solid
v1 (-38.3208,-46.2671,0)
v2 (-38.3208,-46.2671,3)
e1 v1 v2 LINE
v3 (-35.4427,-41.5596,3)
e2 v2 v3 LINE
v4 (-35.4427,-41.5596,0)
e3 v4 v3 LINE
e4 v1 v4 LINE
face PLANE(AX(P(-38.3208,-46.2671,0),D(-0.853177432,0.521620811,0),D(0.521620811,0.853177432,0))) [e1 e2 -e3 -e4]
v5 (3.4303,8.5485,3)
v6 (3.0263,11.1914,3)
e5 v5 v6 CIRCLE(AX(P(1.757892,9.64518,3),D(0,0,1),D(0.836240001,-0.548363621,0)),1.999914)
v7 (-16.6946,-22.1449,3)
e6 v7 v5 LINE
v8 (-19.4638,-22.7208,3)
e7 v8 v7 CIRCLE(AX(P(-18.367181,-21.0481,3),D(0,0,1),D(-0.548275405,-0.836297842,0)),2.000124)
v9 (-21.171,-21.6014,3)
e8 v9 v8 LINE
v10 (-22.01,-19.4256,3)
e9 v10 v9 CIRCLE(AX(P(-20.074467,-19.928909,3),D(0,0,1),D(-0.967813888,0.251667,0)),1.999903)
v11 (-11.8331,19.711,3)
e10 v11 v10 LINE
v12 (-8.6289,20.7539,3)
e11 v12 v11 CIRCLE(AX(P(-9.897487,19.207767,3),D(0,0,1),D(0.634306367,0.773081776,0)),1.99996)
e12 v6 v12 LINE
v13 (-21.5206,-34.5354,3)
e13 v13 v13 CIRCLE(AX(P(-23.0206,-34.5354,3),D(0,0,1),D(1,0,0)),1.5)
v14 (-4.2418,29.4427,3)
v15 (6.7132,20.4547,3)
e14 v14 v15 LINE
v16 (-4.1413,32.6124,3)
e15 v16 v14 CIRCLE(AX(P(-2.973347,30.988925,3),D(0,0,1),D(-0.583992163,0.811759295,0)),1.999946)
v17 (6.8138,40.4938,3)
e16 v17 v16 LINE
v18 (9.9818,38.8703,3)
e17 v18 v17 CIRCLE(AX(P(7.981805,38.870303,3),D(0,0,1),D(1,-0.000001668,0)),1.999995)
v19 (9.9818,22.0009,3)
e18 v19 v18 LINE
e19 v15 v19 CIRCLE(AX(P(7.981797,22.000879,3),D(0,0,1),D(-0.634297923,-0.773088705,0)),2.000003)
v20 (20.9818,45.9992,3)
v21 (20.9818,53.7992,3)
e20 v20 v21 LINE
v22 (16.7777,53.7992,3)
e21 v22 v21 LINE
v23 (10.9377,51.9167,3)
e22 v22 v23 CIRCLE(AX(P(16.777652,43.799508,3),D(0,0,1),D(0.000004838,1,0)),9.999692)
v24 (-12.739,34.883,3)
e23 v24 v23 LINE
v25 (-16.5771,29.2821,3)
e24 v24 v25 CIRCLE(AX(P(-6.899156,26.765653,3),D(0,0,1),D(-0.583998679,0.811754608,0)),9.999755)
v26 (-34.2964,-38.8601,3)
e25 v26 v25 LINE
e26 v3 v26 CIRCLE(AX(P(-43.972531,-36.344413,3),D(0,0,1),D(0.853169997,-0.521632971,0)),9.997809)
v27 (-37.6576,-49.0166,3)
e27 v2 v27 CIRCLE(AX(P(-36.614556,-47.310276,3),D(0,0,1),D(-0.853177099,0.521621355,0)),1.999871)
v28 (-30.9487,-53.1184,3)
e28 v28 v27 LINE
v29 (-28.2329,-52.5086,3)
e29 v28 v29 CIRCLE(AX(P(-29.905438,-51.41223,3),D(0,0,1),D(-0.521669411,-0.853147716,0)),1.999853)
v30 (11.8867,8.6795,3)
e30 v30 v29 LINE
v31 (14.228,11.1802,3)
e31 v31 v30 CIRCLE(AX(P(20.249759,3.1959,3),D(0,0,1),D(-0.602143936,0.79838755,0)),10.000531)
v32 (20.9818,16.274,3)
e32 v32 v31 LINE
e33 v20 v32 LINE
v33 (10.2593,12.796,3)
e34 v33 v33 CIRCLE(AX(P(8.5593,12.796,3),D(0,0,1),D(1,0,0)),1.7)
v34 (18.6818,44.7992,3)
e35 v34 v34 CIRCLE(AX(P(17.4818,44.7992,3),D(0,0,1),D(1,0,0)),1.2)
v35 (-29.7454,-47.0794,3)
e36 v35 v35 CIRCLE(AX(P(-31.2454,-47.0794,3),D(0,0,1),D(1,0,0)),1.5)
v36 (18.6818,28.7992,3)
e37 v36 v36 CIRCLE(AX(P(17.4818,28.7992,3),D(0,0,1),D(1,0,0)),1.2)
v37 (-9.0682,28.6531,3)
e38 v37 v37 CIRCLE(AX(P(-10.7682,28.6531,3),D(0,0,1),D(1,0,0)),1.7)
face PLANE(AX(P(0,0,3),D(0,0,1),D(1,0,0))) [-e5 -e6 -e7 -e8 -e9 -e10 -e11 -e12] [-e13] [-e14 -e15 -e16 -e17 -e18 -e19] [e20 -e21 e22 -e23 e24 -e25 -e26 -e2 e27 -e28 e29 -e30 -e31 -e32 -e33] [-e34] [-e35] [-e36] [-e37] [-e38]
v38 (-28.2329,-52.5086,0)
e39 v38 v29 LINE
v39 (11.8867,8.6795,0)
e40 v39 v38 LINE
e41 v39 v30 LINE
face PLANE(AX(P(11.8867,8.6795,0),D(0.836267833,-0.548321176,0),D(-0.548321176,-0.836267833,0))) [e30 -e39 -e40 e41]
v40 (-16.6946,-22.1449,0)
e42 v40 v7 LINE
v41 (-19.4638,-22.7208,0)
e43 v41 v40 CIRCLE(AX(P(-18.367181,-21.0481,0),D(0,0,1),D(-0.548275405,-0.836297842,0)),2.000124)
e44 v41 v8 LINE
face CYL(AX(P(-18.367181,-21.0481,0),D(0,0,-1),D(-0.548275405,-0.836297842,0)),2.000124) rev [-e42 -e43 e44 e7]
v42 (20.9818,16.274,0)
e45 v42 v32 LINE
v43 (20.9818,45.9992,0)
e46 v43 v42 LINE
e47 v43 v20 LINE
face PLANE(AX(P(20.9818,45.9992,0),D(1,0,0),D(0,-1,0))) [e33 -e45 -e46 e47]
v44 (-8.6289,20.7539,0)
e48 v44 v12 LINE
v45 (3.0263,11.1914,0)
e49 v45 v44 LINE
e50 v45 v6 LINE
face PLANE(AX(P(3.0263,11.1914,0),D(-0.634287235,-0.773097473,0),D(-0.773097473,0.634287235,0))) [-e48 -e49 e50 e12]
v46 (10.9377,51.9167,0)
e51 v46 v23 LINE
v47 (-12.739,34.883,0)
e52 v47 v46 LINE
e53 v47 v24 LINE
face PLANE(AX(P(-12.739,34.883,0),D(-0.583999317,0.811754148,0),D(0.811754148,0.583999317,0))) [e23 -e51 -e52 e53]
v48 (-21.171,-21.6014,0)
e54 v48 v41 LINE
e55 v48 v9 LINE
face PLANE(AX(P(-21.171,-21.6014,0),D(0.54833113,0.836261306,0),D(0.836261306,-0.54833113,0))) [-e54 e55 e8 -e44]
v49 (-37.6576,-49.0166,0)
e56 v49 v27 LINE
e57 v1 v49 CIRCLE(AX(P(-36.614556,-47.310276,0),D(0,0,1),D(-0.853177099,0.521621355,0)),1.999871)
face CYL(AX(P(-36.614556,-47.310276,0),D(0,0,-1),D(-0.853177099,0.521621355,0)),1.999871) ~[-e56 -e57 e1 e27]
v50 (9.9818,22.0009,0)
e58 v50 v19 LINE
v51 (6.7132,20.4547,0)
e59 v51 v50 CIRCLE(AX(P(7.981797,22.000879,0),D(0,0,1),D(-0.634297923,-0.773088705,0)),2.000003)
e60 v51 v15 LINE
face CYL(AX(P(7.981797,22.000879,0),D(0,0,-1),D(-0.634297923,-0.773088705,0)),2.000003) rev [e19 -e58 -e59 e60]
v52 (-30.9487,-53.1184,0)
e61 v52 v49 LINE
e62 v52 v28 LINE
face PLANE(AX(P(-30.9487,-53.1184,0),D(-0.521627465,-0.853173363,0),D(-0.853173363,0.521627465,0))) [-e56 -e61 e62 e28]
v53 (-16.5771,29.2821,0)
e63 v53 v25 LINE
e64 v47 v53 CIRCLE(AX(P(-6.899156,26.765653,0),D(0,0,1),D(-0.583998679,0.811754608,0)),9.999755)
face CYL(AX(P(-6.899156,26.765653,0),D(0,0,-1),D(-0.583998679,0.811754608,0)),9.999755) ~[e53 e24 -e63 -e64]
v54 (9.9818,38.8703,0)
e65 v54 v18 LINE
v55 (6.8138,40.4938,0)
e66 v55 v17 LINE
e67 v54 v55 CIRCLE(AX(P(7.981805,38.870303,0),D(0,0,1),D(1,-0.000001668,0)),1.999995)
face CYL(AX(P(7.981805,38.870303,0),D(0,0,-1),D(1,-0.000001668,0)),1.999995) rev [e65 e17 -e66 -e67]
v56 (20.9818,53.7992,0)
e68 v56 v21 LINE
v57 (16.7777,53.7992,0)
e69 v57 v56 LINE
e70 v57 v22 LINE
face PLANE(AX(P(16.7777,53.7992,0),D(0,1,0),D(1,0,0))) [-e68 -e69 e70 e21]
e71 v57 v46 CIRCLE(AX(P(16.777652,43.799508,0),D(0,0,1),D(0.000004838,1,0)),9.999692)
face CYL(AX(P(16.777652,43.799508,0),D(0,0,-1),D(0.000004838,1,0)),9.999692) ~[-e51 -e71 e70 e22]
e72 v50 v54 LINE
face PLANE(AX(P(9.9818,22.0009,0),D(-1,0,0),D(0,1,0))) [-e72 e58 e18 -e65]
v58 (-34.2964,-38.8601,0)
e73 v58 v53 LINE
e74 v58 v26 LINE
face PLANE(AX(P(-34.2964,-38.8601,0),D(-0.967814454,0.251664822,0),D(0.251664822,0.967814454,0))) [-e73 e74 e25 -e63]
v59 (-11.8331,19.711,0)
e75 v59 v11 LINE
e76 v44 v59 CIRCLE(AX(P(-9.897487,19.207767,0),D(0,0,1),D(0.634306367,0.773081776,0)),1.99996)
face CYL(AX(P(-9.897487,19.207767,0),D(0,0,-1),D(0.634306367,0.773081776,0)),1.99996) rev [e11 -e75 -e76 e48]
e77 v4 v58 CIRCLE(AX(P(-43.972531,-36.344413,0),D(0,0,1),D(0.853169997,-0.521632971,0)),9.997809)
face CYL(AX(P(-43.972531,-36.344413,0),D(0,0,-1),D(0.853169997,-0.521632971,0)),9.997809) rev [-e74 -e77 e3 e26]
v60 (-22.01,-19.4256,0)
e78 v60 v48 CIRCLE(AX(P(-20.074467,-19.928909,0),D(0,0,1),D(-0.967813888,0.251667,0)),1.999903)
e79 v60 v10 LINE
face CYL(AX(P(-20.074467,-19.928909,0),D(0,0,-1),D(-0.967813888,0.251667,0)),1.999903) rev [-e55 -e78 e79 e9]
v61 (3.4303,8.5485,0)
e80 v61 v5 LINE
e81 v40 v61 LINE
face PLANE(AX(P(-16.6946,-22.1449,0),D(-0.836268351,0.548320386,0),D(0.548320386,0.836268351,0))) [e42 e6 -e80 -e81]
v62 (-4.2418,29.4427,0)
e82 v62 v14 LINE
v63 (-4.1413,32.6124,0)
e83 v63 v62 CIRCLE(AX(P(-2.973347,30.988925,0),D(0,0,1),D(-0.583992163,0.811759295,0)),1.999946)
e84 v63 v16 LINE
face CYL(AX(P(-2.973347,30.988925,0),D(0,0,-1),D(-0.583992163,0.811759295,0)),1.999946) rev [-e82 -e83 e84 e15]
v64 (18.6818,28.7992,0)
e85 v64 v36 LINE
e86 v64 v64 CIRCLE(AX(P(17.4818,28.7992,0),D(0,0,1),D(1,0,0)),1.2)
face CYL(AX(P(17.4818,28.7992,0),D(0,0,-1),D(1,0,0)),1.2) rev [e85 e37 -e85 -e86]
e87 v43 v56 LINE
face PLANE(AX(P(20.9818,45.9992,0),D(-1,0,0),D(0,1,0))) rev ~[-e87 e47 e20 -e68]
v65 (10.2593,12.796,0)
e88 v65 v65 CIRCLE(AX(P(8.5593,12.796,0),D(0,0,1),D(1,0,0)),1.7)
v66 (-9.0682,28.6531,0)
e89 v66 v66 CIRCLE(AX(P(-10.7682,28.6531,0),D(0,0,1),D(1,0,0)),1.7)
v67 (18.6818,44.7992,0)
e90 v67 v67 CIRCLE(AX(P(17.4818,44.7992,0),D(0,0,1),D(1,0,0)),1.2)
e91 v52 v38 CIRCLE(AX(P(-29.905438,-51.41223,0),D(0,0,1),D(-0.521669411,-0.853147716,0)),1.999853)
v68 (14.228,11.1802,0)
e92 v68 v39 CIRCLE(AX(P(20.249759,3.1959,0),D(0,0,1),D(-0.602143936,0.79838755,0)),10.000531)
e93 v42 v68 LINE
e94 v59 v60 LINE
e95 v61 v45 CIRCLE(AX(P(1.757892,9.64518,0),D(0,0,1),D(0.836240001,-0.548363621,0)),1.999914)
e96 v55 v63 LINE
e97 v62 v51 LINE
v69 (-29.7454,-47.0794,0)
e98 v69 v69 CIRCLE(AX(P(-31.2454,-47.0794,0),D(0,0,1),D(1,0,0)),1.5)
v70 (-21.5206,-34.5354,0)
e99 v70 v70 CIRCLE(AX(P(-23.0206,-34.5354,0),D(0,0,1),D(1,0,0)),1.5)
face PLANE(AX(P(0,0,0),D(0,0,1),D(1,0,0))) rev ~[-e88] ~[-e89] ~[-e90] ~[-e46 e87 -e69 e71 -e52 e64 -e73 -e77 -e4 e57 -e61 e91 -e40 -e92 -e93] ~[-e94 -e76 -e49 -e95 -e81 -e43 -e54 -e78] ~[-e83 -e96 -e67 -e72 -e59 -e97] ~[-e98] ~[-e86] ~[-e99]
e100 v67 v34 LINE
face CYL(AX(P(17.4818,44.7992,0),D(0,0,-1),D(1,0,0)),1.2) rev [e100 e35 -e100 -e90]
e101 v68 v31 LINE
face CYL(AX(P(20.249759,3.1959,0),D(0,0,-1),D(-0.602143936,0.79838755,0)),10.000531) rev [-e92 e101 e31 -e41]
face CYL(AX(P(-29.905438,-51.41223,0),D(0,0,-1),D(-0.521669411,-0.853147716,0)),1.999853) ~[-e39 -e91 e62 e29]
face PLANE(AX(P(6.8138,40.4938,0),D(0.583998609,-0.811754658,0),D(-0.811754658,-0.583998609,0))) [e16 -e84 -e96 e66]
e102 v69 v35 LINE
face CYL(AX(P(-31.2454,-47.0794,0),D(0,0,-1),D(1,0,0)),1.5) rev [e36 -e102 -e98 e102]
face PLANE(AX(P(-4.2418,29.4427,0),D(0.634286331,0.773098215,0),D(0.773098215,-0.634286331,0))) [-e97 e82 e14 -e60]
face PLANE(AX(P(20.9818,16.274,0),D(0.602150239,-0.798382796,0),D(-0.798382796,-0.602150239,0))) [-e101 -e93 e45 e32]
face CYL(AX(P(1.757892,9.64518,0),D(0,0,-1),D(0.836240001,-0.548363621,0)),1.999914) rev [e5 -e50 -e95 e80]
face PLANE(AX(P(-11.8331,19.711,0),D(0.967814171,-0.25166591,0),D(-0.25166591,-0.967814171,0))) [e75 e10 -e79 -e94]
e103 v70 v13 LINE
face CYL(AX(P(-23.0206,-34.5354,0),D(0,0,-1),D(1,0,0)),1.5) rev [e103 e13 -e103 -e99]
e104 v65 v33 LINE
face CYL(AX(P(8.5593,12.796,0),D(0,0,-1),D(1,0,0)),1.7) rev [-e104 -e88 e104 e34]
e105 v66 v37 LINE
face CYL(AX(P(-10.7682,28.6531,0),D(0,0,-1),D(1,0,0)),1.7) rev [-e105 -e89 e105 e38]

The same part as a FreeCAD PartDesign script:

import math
import FreeCAD as App
import Part
import Sketcher
from FreeCAD import Vector
Q = App.Units.Quantity

doc = App.newDocument("Part")
body = doc.addObject("PartDesign::Body", "Body")

# Sketch on XY plane
sketch1 = body.newObject("Sketcher::SketchObject", "Sketch")
sketch1.AttachmentSupport = (doc.getObject("XY_Plane"), [""])
sketch1.MapMode = "FlatFace"
sketch1.addGeometry([
    Part.LineSegment(Vector(-37.6576, -49.0166, 0), Vector(-30.9487, -53.1184, 0)),  # 0
    Part.ArcOfCircle(Part.Circle(Vector(-29.9054, -51.412, 0), Vector(0, 0, 1), 2.000069), math.radians(-121.441788), math.radians(-33.25146)),  # 1
    Part.LineSegment(Vector(-28.2329, -52.5086, 0), Vector(11.8867, 8.6795, 0)),  # 2
    Part.ArcOfCircle(Part.Circle(Vector(20.2494, 3.1963, 0), Vector(0, 0, 1), 9.999996), math.radians(127.023336), math.radians(146.74821)),  # 3
    Part.LineSegment(Vector(14.228, 11.1802, 0), Vector(20.9818, 16.274, 0)),  # 4
    Part.LineSegment(Vector(20.9818, 16.274, 0), Vector(20.9818, 53.7992, 0)),  # 5
    Part.LineSegment(Vector(20.9818, 53.7992, 0), Vector(16.7777, 53.7992, 0)),  # 6
    Part.ArcOfCircle(Part.Circle(Vector(16.7777, 43.7992, 0), Vector(0, 0, 1), 10), math.radians(90), math.radians(125.732498)),  # 7
    Part.LineSegment(Vector(10.9377, 51.9167, 0), Vector(-12.739, 34.883, 0)),  # 8
    Part.ArcOfCircle(Part.Circle(Vector(-6.899, 26.7655, 0), Vector(0, 0, 1), 9.99997), math.radians(125.732498), math.radians(165.424153)),  # 9
    Part.LineSegment(Vector(-16.5771, 29.2821, 0), Vector(-34.2964, -38.8601, 0)),  # 10
    Part.ArcOfCircle(Part.Circle(Vector(-43.972531, -36.344413, 0), Vector(0, 0, 1), 9.997809), math.radians(-31.441852), math.radians(-14.573622)),  # 11
    Part.LineSegment(Vector(-35.4427, -41.5596, 0), Vector(-38.3208, -46.2671, 0)),  # 12
    Part.ArcOfCircle(Part.Circle(Vector(-36.6144, -47.3103, 0), Vector(0, 0, 1), 2.000017), math.radians(148.560657), math.radians(238.559162)),  # 13
    Part.Circle(Vector(-31.2454, -47.0794, 0), Vector(0, 0, 1), 1.5),  # 14
    Part.Circle(Vector(-23.0206, -34.5354, 0), Vector(0, 0, 1), 1.5),  # 15
    Part.LineSegment(Vector(3.4303, 8.5485, 0), Vector(-16.6946, -22.1449, 0)),  # 16
    Part.ArcOfCircle(Part.Circle(Vector(-18.3672, -21.0482, 0), Vector(0, 0, 1), 2.000031), math.radians(-123.24989), math.radians(-33.252285)),  # 17
    Part.LineSegment(Vector(-19.4638, -22.7208, 0), Vector(-21.171, -21.6014, 0)),  # 18
    Part.ArcOfCircle(Part.Circle(Vector(-20.0743, -19.9289, 0), Vector(0, 0, 1), 2.000061), math.radians(165.425285), math.radians(236.746144)),  # 19
    Part.LineSegment(Vector(-22.01, -19.4256, 0), Vector(-11.8331, 19.711, 0)),  # 20
    Part.ArcOfCircle(Part.Circle(Vector(-9.8975, 19.2077, 0), Vector(0, 0, 1), 2.00002), math.radians(50.632386), math.radians(165.424564)),  # 21
    Part.LineSegment(Vector(-8.6289, 20.7539, 0), Vector(3.0263, 11.1914, 0)),  # 22
    Part.ArcOfCircle(Part.Circle(Vector(1.7578, 9.6452, 0), Vector(0, 0, 1), 2.000002), math.radians(-33.253856), math.radians(50.634601)),  # 23
    Part.Circle(Vector(-10.7682, 28.6531, 0), Vector(0, 0, 1), 1.7),  # 24
    Part.Circle(Vector(8.5593, 12.796, 0), Vector(0, 0, 1), 1.7),  # 25
    Part.ArcOfCircle(Part.Circle(Vector(-2.9733, 30.9889, 0), Vector(0, 0, 1), 1.999994), math.radians(125.732498), math.radians(230.634601)),  # 26
    Part.LineSegment(Vector(-4.1413, 32.6124, 0), Vector(6.8138, 40.4938, 0)),  # 27
    Part.ArcOfCircle(Part.Circle(Vector(7.9818, 38.8703, 0), Vector(0, 0, 1), 2), math.radians(0), math.radians(125.732498)),  # 28
    Part.LineSegment(Vector(9.9818, 38.8703, 0), Vector(9.9818, 22.0009, 0)),  # 29
    Part.ArcOfCircle(Part.Circle(Vector(7.9818, 22.0009, 0), Vector(0, 0, 1), 2.00002), math.radians(-129.367614), math.radians(0)),  # 30
    Part.LineSegment(Vector(6.7132, 20.4547, 0), Vector(-4.2418, 29.4427, 0)),  # 31
    Part.Circle(Vector(17.4818, 28.7992, 0), Vector(0, 0, 1), 1.2),  # 32
    Part.Circle(Vector(17.4818, 44.7992, 0), Vector(0, 0, 1), 1.2),  # 33
], False)
sketch1.addConstraint([
    Sketcher.Constraint("Coincident", 0, 2, 1, 1),
    Sketcher.Constraint("Coincident", 1, 2, 2, 1),
    Sketcher.Constraint("Coincident", 2, 2, 3, 2),
    Sketcher.Constraint("Coincident", 3, 1, 4, 1),
    Sketcher.Constraint("Coincident", 4, 2, 5, 1),
    Sketcher.Constraint("Coincident", 5, 2, 6, 1),
    Sketcher.Constraint("Coincident", 6, 2, 7, 1),
    Sketcher.Constraint("Coincident", 7, 2, 8, 1),
    Sketcher.Constraint("Coincident", 8, 2, 9, 1),
    Sketcher.Constraint("Coincident", 9, 2, 10, 1),
    Sketcher.Constraint("Coincident", 10, 2, 11, 2),
    Sketcher.Constraint("Coincident", 11, 1, 12, 1),
    Sketcher.Constraint("Coincident", 12, 2, 13, 1),
    Sketcher.Constraint("Coincident", 13, 2, 0, 1),
    Sketcher.Constraint("Coincident", 16, 2, 17, 2),
    Sketcher.Constraint("Coincident", 17, 1, 18, 1),
    Sketcher.Constraint("Coincident", 18, 2, 19, 2),
    Sketcher.Constraint("Coincident", 19, 1, 20, 1),
    Sketcher.Constraint("Coincident", 20, 2, 21, 2),
    Sketcher.Constraint("Coincident", 21, 1, 22, 1),
    Sketcher.Constraint("Coincident", 22, 2, 23, 2),
    Sketcher.Constraint("Coincident", 23, 1, 16, 1),
    Sketcher.Constraint("Coincident", 26, 1, 27, 1),
    Sketcher.Constraint("Coincident", 27, 2, 28, 2),
    Sketcher.Constraint("Coincident", 28, 1, 29, 1),
    Sketcher.Constraint("Coincident", 29, 2, 30, 2),
    Sketcher.Constraint("Coincident", 30, 1, 31, 1),
    Sketcher.Constraint("Coincident", 31, 2, 26, 2),
    Sketcher.Constraint("Vertical", 5),
    Sketcher.Constraint("Horizontal", 6),
    Sketcher.Constraint("Vertical", 29),
    Sketcher.Constraint("Diameter", 14, Q("3 mm")),
    Sketcher.Constraint("Diameter", 15, Q("3 mm")),
    Sketcher.Constraint("Radius", 1, Q("2 mm")),
    Sketcher.Constraint("Radius", 13, Q("2 mm")),
    Sketcher.Constraint("Radius", 17, Q("2 mm")),
    Sketcher.Constraint("Radius", 19, Q("2 mm")),
    Sketcher.Constraint("Radius", 21, Q("2 mm")),
    Sketcher.Constraint("Radius", 23, Q("2 mm")),
    Sketcher.Constraint("Radius", 26, Q("2 mm")),
    Sketcher.Constraint("Radius", 28, Q("2 mm")),
    Sketcher.Constraint("Radius", 30, Q("2 mm")),
    Sketcher.Constraint("Diameter", 24, Q("3.4 mm")),
    Sketcher.Constraint("Diameter", 25, Q("3.4 mm")),
    Sketcher.Constraint("Radius", 3, Q("10 mm")),
    Sketcher.Constraint("Radius", 7, Q("10 mm")),
    Sketcher.Constraint("Radius", 9, Q("10 mm")),
    Sketcher.Constraint("DistanceY", 32, 3, 7, 3, Q("15 mm")),
    Sketcher.Constraint("Diameter", 32, Q("2.4 mm")),
    Sketcher.Constraint("Diameter", 33, Q("2.4 mm")),
    Sketcher.Constraint("DistanceY", 7, 3, 33, 3, Q("1 mm")),
    Sketcher.Constraint("DistanceX", 28, 3, 5, 2, Q("13 mm")),
    Sketcher.Constraint("Radius", 11, Q("9.9978 mm")),
    Sketcher.Constraint("DistanceX", 30, 3, 32, 3, Q("9.5 mm")),
    Sketcher.Constraint("DistanceX", 28, 3, 33, 3, Q("9.5 mm")),
    Sketcher.Constraint("DistanceX", 6, 2, 6, 1, Q("4.204 mm")),
    Sketcher.Constraint("DistanceY", 10, 2, -1, 1, Q("38.86 mm")),
    Sketcher.Constraint("DistanceX", 19, 1, -1, 1, Q("22.01 mm")),
    Sketcher.Constraint("DistanceY", 11, 3, 9, 3, Q("63.11 mm")),
    Sketcher.Constraint("DistanceX", 14, 3, 1, 3, Q("1.34 mm")),
    Sketcher.Constraint("DistanceX", 15, 3, 3, 3, Q("43.27 mm")),
    Sketcher.Constraint("DistanceX", 13, 3, 19, 3, Q("16.54 mm")),
    Sketcher.Constraint("DistanceX", 25, 3, 3, 3, Q("11.69 mm")),
    Sketcher.Constraint("DistanceX", 24, 3, 28, 3, Q("18.75 mm")),
    Sketcher.Constraint("DistanceX", 7, 2, 6, 2, Q("5.84 mm")),
    Sketcher.Constraint("DistanceX", 7, 2, 7, 3, Q("5.84 mm")),
    Sketcher.Constraint("DistanceY", 24, 3, 8, 2, Q("6.23 mm")),
    Sketcher.Constraint("DistanceX", 8, 2, 9, 3, Q("5.84 mm")),
    Sketcher.Constraint("DistanceX", 21, 1, 9, 3, Q("1.73 mm")),
    Sketcher.Constraint("Distance", 2, Q("73.168 mm")),
    Sketcher.Constraint("Distance", 22, Q("15.076 mm")),
    Sketcher.Constraint("DistanceY", 5, 1, 5, 2, Q("37.5252 mm")),
    Sketcher.Constraint("DistanceY", 29, 2, 29, 1, Q("16.8694 mm")),
    Sketcher.Constraint("DistanceY", 1, 3, -1, 1, Q("51.412 mm")),
    Sketcher.Constraint("DistanceX", 9, 3, -1, 1, Q("6.899 mm")),
    Sketcher.Constraint("DistanceY", 19, 3, -1, 1, Q("19.929 mm")),
    Sketcher.Constraint("DistanceY", -1, 1, 24, 3, Q("28.653 mm")),
    Sketcher.Constraint("DistanceY", -1, 1, 25, 3, Q("12.796 mm")),
    Sketcher.Constraint("DistanceY", -1, 1, 26, 3, Q("30.989 mm")),
    Sketcher.Constraint("DistanceY", -1, 1, 30, 3, Q("22.001 mm")),
    Sketcher.Constraint("DistanceX", -1, 1, 3, 1, Q("14.228 mm")),
    Sketcher.Constraint("DistanceY", -1, 1, 4, 2, Q("16.274 mm")),
    Sketcher.Constraint("DistanceY", -1, 1, 9, 2, Q("29.282 mm")),
    Sketcher.Constraint("DistanceY", 12, 2, -1, 1, Q("46.267 mm")),
    Sketcher.Constraint("DistanceY", 16, 2, -1, 1, Q("22.145 mm")),
    Sketcher.Constraint("DistanceX", 18, 2, -1, 1, Q("21.171 mm")),
    Sketcher.Constraint("DistanceX", 20, 2, -1, 1, Q("11.833 mm")),
    Sketcher.Constraint("DistanceY", -1, 1, 20, 2, Q("19.711 mm")),
    Sketcher.Constraint("DistanceY", -1, 1, 21, 1, Q("20.754 mm")),
    Sketcher.Constraint("DistanceY", -1, 1, 29, 2, Q("22.001 mm")),
    Sketcher.Constraint("DistanceY", 3, 3, 7, 3, Q("40.603 mm")),
    Sketcher.Constraint("DistanceX", 1, 3, 7, 3, Q("46.683 mm")),
    Sketcher.Constraint("DistanceX", 11, 3, 3, 3, Q("64.222 mm")),
    Sketcher.Constraint("DistanceX", 13, 3, 1, 3, Q("6.709 mm")),
    Sketcher.Constraint("DistanceY", 13, 3, 11, 3, Q("10.966 mm")),
    Sketcher.Constraint("DistanceY", 13, 3, 14, 3, Q("0.231 mm")),
    Sketcher.Constraint("DistanceY", 14, 3, 15, 3, Q("12.544 mm")),
    Sketcher.Constraint("DistanceY", 13, 3, 17, 3, Q("26.262 mm")),
    Sketcher.Constraint("DistanceX", 19, 3, 17, 3, Q("1.707 mm")),
    Sketcher.Constraint("DistanceX", 21, 3, 3, 3, Q("30.147 mm")),
    Sketcher.Constraint("DistanceY", 3, 3, 23, 3, Q("6.449 mm")),
    Sketcher.Constraint("DistanceX", 17, 3, 23, 3, Q("20.125 mm")),
    Sketcher.Constraint("DistanceX", 24, 3, 26, 3, Q("7.795 mm")),
    Sketcher.Constraint("DistanceY", 28, 3, 7, 3, Q("4.929 mm")),
    Sketcher.Constraint("DistanceY", 0, 2, 14, 3, Q("6.039 mm")),
    Sketcher.Constraint("DistanceX", 0, 2, 15, 3, Q("7.928 mm")),
    Sketcher.Constraint("DistanceX", 0, 2, 1, 2, Q("2.716 mm")),
    Sketcher.Constraint("DistanceX", 12, 2, 11, 1, Q("2.878 mm")),
    Sketcher.Constraint("DistanceX", 13, 2, 11, 1, Q("2.215 mm")),
    Sketcher.Constraint("DistanceY", 17, 1, 16, 2, Q("0.576 mm")),
    Sketcher.Constraint("DistanceX", 22, 2, 23, 1, Q("0.404 mm")),
    Sketcher.Constraint("DistanceX", 26, 1, 26, 3, Q("1.168 mm")),
    Sketcher.Constraint("DistanceX", 27, 2, 28, 3, Q("1.168 mm")),
    Sketcher.Constraint("DistanceX", 30, 1, 25, 3, Q("1.846 mm")),
    Sketcher.Constraint("DistanceX", 21, 1, 31, 2, Q("4.387 mm")),
])
pad1 = body.newObject("PartDesign::Pad", "Pad")
pad1.Profile = sketch1
pad1.Length = 3

doc.recompute()
